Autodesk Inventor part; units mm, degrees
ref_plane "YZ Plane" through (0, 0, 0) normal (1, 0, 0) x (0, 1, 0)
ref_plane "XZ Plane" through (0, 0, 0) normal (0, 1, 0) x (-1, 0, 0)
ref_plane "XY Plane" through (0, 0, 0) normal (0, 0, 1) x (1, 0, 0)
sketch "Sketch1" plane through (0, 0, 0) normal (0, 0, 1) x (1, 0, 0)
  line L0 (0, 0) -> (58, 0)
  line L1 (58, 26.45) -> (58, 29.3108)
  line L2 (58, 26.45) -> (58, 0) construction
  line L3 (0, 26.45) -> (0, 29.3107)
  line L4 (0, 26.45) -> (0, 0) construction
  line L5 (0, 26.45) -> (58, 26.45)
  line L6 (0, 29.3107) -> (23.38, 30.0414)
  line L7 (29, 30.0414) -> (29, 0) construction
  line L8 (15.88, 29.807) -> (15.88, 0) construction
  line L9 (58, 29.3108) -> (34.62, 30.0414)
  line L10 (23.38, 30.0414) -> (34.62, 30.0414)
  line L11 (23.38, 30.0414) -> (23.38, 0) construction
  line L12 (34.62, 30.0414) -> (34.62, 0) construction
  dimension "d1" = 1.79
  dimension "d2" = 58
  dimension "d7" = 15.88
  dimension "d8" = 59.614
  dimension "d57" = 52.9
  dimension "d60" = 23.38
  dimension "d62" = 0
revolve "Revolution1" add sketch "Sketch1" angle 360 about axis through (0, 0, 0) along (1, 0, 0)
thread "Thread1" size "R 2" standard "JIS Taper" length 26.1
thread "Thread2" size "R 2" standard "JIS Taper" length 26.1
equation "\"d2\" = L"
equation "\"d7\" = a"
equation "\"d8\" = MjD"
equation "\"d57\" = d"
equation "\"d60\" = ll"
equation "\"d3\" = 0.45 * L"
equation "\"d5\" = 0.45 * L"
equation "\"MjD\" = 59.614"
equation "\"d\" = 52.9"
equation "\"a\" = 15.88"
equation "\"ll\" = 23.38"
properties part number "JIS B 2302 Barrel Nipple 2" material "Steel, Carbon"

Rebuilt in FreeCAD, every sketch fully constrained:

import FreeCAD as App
import Part
import Sketcher

V = App.Vector
Q = App.Units.Quantity

doc = App.newDocument("Part")
body = doc.addObject("PartDesign::Body", "Body")

sketch1 = doc.addObject("Sketcher::SketchObject", "Sketch")
body.addObject(sketch1)
sketch1.AttachmentSupport = (doc.XY_Plane, [""])
sketch1.MapMode = "FlatFace"
sketch1.addGeometry(Part.LineSegment(V(0, 26.4, 0), V(58, 26.4, 0)), False)
sketch1.addGeometry(Part.LineSegment(V(58, 26.4, 0), V(58, 29.3, 0)), False)
sketch1.addGeometry(Part.LineSegment(V(58, 29.3, 0), V(34.6, 30, 0)), False)
sketch1.addGeometry(Part.LineSegment(V(34.6, 30, 0), V(23.4, 30, 0)), False)
sketch1.addGeometry(Part.LineSegment(V(23.4, 30, 0), V(0, 29.3, 0)), False)
sketch1.addGeometry(Part.LineSegment(V(0, 29.3, 0), V(0, 26.4, 0)), False)
sketch1.addConstraint(Sketcher.Constraint("Coincident", 0, 2, 1, 1))
sketch1.addConstraint(Sketcher.Constraint("Coincident", 1, 2, 2, 1))
sketch1.addConstraint(Sketcher.Constraint("Coincident", 2, 2, 3, 1))
sketch1.addConstraint(Sketcher.Constraint("Coincident", 3, 2, 4, 1))
sketch1.addConstraint(Sketcher.Constraint("Coincident", 4, 2, 5, 1))
sketch1.addConstraint(Sketcher.Constraint("Coincident", 5, 2, 0, 1))
sketch1.addConstraint(Sketcher.Constraint("Horizontal", 0))
sketch1.addConstraint(Sketcher.Constraint("Vertical", 1))
sketch1.addConstraint(Sketcher.Constraint("Horizontal", 3))
sketch1.addConstraint(Sketcher.Constraint("Vertical", 5))
sketch1.addConstraint(Sketcher.Constraint("PointOnObject", 4, 2, -2))
sketch1.addConstraint(Sketcher.Constraint("Horizontal", 1, 2, 4, 2))
sketch1.addConstraint(Sketcher.Constraint("Equal", 2, 4))
sketch1.addConstraint(Sketcher.Constraint("DistanceX", 0, 1, 0, 2, 58.0))
sketch1.addConstraint(Sketcher.Constraint("DistanceX", -1, 1, 3, 2, 23.38))
sketch1.addConstraint(Sketcher.Constraint("Angle", 2, Q("178.2102 deg")))
sketch1.addConstraint(Sketcher.Constraint("DistanceY", -1, 1, 0, 2, 26.45))
sketch1.addConstraint(Sketcher.Constraint("DistanceY", 1, 1, 1, 2, 2.8608))
revolution = doc.addObject("PartDesign::Revolution", "Revolution")
body.addObject(revolution)
revolution.Profile = sketch1
revolution.ReferenceAxis = (sketch1, ["H_Axis"])
revolution.Angle = 360

doc.recompute()
